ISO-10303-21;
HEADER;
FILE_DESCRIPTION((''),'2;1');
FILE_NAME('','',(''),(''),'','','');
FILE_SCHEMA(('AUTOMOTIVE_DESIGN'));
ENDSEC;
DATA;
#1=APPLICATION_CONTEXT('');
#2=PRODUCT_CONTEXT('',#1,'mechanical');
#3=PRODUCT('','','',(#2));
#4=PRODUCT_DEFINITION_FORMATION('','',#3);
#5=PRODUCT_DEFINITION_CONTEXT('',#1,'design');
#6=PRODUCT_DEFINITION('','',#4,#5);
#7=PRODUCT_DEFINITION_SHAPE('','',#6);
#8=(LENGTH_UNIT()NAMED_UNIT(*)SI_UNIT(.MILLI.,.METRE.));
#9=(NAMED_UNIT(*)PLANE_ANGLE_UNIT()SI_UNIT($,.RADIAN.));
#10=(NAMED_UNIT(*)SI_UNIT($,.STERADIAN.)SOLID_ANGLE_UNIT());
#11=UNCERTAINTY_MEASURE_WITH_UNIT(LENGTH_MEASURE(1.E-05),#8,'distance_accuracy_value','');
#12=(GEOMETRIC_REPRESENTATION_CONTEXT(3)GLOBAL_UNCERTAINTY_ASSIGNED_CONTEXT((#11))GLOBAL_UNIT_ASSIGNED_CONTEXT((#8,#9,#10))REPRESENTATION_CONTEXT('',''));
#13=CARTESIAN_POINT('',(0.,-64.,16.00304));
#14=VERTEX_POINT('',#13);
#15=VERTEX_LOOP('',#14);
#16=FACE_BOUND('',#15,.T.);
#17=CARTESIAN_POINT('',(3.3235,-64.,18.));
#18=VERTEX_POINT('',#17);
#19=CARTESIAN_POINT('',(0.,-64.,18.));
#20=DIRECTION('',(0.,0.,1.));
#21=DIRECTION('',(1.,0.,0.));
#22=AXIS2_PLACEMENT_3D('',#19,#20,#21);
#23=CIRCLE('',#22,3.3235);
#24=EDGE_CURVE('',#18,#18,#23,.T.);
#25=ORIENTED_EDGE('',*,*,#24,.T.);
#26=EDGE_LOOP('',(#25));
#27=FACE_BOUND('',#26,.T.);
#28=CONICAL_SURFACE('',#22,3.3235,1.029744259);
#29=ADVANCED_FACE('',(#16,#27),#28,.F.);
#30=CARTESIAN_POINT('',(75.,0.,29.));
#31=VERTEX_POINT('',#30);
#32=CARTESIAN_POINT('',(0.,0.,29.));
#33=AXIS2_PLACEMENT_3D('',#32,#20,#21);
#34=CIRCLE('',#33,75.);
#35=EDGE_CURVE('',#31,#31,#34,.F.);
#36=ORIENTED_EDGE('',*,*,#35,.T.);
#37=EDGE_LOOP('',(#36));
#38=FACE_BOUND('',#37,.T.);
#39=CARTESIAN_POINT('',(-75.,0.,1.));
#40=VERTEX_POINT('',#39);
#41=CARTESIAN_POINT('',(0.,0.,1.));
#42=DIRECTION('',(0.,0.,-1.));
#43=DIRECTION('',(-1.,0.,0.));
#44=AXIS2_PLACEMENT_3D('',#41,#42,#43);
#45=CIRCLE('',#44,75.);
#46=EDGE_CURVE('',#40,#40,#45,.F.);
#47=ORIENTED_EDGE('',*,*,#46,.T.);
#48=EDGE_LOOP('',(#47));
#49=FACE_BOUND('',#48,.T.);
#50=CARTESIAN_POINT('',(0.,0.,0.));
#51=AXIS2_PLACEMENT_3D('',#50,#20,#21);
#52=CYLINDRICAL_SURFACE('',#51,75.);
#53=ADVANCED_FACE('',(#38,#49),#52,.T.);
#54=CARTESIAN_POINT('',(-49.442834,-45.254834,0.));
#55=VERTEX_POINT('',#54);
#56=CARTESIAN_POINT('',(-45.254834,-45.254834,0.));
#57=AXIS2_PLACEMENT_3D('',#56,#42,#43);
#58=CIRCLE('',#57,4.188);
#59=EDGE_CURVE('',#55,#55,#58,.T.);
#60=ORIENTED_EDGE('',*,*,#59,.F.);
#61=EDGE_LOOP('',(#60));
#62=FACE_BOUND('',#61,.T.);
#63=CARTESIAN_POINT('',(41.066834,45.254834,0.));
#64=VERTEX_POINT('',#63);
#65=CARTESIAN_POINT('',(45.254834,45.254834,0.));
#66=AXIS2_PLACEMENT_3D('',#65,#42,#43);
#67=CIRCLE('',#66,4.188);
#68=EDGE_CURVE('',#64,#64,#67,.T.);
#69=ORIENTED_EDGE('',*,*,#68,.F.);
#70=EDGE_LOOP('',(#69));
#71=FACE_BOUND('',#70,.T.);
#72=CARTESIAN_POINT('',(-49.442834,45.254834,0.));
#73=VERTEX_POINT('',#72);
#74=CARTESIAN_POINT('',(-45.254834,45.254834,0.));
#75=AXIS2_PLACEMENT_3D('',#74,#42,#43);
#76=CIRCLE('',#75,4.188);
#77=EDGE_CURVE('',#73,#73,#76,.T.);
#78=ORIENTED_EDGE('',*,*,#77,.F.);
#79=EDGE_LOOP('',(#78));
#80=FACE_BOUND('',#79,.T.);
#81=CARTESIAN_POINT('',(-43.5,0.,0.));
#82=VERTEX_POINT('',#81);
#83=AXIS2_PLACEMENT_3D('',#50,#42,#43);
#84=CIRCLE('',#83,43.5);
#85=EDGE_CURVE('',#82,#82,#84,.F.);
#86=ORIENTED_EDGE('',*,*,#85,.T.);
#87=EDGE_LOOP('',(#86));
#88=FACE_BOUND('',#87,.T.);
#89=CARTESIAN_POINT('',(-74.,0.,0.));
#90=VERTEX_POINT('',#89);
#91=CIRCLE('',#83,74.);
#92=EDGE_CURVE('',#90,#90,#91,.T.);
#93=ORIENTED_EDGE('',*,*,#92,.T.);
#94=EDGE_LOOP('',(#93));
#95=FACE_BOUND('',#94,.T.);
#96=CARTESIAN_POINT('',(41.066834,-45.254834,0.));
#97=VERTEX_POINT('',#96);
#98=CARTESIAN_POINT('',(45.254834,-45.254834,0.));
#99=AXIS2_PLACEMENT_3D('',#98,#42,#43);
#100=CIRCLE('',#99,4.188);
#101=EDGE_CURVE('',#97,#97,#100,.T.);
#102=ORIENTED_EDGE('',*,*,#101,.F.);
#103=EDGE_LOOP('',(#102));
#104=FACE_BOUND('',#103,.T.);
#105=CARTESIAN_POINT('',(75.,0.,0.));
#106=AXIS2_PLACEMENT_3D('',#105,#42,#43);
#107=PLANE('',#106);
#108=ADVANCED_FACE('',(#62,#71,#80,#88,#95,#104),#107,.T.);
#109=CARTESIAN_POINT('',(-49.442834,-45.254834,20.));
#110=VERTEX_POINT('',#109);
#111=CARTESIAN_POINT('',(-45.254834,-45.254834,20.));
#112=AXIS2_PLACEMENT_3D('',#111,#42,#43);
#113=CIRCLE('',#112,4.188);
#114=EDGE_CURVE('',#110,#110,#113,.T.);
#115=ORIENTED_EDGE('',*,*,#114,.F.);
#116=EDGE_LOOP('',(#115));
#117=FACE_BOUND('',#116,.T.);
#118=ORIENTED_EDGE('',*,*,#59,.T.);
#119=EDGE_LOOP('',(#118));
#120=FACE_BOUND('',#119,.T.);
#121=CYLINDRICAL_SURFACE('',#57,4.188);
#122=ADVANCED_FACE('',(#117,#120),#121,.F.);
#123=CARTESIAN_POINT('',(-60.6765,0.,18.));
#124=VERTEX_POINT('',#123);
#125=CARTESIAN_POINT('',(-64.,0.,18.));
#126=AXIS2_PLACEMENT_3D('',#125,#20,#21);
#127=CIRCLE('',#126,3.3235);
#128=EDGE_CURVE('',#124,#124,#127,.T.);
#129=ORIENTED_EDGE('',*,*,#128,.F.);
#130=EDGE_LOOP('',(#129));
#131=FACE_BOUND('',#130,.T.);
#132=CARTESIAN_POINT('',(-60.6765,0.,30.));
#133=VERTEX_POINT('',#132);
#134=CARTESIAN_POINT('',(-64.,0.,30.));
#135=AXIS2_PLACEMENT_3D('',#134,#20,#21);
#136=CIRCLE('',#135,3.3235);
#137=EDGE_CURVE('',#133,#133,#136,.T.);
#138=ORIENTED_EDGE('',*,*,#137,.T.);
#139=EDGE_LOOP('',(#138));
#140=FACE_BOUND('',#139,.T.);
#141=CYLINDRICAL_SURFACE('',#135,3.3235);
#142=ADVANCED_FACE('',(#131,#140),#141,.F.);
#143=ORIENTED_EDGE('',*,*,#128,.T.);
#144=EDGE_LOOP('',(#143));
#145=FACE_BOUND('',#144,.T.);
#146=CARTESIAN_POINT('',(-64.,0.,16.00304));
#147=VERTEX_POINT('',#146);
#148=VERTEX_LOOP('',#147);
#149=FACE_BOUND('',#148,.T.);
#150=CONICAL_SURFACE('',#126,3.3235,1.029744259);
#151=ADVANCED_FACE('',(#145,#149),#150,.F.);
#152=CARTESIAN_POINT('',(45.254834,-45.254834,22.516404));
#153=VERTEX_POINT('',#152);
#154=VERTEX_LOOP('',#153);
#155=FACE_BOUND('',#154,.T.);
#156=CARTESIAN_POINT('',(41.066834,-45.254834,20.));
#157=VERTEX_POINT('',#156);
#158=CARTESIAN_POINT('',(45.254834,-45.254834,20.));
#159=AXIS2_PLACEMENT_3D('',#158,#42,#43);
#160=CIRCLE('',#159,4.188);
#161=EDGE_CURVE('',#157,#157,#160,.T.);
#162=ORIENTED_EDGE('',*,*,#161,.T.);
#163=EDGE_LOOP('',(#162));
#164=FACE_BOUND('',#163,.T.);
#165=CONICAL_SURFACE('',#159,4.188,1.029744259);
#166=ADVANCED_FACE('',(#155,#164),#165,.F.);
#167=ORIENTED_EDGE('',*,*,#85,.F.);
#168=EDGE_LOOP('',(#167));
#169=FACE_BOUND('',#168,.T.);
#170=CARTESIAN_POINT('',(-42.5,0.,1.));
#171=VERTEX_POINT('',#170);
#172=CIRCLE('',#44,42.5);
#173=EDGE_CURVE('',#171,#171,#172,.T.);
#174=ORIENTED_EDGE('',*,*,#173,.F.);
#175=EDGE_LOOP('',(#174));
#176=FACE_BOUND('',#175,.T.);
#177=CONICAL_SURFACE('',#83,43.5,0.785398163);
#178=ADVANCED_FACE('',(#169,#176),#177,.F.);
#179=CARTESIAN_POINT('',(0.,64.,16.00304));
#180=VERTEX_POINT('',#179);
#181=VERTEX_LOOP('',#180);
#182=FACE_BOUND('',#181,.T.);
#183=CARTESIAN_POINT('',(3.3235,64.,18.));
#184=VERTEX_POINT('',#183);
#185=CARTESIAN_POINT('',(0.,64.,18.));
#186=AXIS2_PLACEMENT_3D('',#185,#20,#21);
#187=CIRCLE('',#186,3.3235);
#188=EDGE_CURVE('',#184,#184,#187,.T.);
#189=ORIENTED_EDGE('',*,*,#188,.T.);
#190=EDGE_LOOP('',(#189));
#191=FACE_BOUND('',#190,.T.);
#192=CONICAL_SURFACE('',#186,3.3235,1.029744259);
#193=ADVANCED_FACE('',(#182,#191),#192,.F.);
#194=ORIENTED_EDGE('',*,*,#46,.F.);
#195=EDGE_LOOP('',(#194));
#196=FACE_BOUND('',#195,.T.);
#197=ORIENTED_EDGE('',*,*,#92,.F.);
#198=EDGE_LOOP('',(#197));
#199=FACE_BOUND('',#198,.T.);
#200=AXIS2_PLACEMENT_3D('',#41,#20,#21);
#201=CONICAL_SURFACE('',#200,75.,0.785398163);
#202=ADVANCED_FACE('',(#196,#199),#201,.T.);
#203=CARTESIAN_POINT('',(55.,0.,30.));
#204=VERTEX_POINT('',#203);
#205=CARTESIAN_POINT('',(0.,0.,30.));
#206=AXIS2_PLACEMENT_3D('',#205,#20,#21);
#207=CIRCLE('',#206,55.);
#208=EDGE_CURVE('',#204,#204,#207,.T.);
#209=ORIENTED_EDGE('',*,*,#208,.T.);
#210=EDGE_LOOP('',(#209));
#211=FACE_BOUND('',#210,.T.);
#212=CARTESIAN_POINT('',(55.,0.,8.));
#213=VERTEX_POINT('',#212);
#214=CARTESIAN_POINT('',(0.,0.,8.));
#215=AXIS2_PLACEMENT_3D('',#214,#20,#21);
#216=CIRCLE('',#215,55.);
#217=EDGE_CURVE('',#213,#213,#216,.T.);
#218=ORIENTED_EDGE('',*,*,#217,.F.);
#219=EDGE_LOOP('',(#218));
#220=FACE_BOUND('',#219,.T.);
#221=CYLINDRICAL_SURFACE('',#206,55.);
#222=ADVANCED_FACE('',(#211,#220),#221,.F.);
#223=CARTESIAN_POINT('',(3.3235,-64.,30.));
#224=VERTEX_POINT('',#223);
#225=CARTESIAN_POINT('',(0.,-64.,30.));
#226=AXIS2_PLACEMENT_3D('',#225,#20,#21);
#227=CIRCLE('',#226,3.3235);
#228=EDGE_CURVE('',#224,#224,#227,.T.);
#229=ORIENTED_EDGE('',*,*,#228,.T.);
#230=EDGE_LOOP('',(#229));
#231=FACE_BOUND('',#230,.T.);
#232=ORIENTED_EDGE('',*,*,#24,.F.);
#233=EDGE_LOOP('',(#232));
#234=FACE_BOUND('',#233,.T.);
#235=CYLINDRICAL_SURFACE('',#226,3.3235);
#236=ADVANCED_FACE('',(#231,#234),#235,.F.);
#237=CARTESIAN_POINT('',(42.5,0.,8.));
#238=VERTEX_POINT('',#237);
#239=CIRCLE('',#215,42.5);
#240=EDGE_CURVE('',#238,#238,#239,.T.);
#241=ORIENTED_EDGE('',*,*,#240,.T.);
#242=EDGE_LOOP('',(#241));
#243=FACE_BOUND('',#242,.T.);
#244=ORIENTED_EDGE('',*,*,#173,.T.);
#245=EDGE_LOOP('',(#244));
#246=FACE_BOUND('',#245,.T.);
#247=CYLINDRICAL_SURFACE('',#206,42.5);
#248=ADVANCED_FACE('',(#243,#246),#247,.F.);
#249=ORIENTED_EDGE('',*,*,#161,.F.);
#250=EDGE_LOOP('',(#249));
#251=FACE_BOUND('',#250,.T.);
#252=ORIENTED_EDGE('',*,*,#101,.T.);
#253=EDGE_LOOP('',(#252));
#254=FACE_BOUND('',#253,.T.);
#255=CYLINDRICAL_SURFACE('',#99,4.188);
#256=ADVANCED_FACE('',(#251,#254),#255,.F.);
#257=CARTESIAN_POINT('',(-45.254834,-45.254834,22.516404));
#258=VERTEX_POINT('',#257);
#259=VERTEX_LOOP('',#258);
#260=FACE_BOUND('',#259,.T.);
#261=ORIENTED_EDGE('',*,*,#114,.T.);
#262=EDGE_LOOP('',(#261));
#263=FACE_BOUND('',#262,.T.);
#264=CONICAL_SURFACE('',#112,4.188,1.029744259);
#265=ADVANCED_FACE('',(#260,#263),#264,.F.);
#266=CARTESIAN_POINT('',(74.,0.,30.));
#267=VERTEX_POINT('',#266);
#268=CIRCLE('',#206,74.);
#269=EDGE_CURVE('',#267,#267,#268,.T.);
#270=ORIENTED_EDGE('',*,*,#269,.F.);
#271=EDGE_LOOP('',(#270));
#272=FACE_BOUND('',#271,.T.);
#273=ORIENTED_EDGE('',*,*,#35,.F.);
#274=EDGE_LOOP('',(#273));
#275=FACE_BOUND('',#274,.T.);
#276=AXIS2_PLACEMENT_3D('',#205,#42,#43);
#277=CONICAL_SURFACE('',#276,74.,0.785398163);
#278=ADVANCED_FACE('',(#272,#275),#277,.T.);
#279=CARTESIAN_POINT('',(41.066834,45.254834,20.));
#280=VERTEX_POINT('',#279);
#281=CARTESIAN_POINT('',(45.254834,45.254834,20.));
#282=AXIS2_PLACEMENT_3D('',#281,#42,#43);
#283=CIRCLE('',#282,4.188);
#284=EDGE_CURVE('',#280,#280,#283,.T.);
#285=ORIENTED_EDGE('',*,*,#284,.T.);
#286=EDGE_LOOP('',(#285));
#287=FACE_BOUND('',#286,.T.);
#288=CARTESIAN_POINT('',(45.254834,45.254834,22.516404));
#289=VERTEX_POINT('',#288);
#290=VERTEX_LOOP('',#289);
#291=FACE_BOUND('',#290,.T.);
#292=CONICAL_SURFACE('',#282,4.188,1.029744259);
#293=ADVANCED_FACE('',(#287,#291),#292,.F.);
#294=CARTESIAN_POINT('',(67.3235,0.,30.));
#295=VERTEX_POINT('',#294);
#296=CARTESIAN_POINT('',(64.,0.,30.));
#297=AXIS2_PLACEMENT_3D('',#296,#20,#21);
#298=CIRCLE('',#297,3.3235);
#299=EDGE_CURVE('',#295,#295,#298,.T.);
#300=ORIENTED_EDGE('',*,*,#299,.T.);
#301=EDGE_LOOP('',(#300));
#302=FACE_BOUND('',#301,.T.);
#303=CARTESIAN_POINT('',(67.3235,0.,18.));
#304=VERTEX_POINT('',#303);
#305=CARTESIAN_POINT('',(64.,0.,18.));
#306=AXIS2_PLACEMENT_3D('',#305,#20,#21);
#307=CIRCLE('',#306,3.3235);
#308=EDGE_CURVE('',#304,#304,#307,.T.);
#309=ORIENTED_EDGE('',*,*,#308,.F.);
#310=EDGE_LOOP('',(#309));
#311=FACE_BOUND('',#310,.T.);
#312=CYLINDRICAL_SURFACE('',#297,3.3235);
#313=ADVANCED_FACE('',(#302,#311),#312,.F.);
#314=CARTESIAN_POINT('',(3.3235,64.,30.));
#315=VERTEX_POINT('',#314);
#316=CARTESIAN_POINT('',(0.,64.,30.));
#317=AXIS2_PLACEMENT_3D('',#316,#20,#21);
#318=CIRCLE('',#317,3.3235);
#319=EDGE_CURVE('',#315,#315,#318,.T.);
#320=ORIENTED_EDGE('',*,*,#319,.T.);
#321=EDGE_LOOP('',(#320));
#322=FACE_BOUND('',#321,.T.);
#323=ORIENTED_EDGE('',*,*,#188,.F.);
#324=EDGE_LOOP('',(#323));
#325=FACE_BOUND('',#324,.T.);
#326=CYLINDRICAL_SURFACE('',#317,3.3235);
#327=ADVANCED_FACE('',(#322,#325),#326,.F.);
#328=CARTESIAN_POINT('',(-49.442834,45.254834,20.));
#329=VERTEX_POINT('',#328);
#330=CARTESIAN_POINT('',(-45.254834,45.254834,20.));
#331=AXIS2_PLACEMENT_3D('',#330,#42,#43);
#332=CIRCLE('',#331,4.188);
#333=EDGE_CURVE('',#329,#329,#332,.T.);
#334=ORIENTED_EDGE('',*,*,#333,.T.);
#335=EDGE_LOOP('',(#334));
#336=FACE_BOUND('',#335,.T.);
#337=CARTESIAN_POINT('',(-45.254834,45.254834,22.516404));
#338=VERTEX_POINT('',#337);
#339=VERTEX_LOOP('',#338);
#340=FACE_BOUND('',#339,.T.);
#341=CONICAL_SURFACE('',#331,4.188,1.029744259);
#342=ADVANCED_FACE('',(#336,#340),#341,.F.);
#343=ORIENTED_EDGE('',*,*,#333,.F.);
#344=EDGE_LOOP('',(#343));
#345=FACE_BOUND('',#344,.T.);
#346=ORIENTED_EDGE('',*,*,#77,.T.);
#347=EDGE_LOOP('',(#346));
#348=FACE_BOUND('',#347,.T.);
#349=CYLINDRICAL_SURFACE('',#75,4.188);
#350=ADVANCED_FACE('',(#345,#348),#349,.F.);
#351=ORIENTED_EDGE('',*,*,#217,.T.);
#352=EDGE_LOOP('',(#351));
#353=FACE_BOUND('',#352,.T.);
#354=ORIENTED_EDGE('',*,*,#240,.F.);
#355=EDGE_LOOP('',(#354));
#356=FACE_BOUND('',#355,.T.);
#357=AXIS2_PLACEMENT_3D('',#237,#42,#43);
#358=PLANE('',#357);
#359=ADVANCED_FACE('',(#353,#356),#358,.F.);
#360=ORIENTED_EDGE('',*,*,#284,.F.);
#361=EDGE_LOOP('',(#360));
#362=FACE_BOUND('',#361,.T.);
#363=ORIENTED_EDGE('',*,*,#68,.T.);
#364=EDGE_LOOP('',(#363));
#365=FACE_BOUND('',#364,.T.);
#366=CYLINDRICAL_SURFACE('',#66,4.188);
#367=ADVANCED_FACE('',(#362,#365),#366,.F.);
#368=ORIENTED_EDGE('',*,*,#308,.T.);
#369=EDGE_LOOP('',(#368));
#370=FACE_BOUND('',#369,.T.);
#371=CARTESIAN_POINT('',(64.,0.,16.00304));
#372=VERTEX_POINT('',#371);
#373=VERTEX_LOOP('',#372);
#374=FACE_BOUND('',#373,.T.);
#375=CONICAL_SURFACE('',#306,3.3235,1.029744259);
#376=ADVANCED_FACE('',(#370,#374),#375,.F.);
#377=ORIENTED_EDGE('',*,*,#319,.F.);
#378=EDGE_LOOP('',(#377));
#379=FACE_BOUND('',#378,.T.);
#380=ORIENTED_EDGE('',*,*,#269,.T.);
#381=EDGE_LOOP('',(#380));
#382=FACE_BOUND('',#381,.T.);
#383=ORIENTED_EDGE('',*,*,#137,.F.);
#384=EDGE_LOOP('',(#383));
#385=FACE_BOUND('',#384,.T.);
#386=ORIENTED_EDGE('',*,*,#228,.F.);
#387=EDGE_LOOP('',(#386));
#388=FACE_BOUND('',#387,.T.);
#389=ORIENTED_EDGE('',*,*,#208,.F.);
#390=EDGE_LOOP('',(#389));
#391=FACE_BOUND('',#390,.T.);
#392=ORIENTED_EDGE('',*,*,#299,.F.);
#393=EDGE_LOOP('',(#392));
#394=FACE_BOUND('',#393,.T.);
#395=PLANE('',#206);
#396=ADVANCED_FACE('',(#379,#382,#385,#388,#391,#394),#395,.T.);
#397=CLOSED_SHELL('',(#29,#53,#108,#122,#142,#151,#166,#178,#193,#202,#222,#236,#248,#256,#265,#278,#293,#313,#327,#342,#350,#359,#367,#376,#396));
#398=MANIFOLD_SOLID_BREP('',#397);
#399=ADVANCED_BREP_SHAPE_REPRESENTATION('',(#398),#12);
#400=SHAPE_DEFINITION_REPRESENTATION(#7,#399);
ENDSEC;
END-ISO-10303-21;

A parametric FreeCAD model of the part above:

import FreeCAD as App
import Part
import Sketcher

V = App.Vector


def edges_at(feature, points):
    """Names of the edges that pass closest to the given points."""
    edges = feature.Shape.Edges
    near = lambda p: min(range(len(edges)), key=lambda i: edges[i].distToShape(Part.Vertex(*p))[0])
    return sorted({f"Edge{near(p) + 1}" for p in points})


def add_polygon(sketch, points):
    """Adds a closed chain of lines whose ends are joined by coincident constraints."""
    first, n = sketch.GeometryCount, len(points)
    for a, b in zip(points, points[1:] + points[:1]):
        sketch.addGeometry(Part.LineSegment(App.Vector(*a, 0), App.Vector(*b, 0)), False)
    for i in range(n):
        sketch.addConstraint(Sketcher.Constraint("Coincident", first + i, 2, first + (i + 1) % n, 1))

doc = App.newDocument("Part")
params = doc.addObject("Spreadsheet::Sheet", "Params")
for row, (alias, value) in enumerate([
    ("sketch1_width", "75 mm"),
    ("sketch1_height", "30 mm"),
    ("revolution_angle", "360 deg"),
    ("sketch2_diameter", "85 mm"),
    ("hole_diameter", "85 mm"),
    ("hole_depth", "30 mm"),
    ("hole_cbore_diameter", "110 mm"),
    ("hole_cbore_depth", "22 mm"),
    ("hole2_diameter", "8.376 mm"),
    ("hole2_depth", "20 mm"),
    ("hole3_diameter", "6.647 mm"),
    ("hole3_depth", "12 mm"),
    ("chamfer_size", "1 mm"),
], start=1):
    params.set(f"A{row}", alias)
    params.set(f"B{row}", "=" + value)
    params.setAlias(f"B{row}", alias)

body = doc.addObject("PartDesign::Body", "Body")

sketch1 = body.newObject("Sketcher::SketchObject", "Sketch")
sketch1.AttachmentSupport = (doc.getObject("XZ_Plane"), [""])
sketch1.MapMode = "FlatFace"
add_polygon(sketch1, [(0, 0), (0, 30), (75, 30), (75, 0)])
sketch1.addConstraint([
    Sketcher.Constraint("Vertical", 0),
    Sketcher.Constraint("Horizontal", 1),
    Sketcher.Constraint("Vertical", 2),
    Sketcher.Constraint("Horizontal", 3),
    Sketcher.Constraint("Coincident", 3, 2, -1, 1),
    Sketcher.Constraint("DistanceX", 1, 1, 1, 2, 75.0),
    Sketcher.Constraint("DistanceY", 0, 1, 0, 2, 30.0),
])
sketch1.setExpression("Constraints[9]", "Params.sketch1_width")
sketch1.setExpression("Constraints[10]", "Params.sketch1_height")
revolution = body.newObject("PartDesign::Revolution", "Revolution")
revolution.Profile = sketch1
revolution.ReferenceAxis = (sketch1, ["V_Axis"])
revolution.setExpression("Angle", "Params.revolution_angle")

sketch2 = body.newObject("Sketcher::SketchObject", "Sketch001")
sketch2.AttachmentSupport = (doc.getObject("XY_Plane"), [""])
sketch2.MapMode = "FlatFace"
sketch2.AttachmentOffset = App.Placement(V(0, 0, 30), App.Rotation())
sketch2.addGeometry(Part.Circle(V(0, 0, 0), V(0, 0, 1), 42), False)
sketch2.addConstraint([
    Sketcher.Constraint("Coincident", 0, 3, -1, 1),
    Sketcher.Constraint("Diameter", 0, 85.0),
])
sketch2.setExpression("Constraints[1]", "Params.sketch2_diameter")
doc.recompute()
hole = body.newObject("PartDesign::Hole", "Hole")
hole.Profile = sketch2
hole.ThreadType = "None"
hole.setExpression("Diameter", "Params.hole_diameter")
hole.DepthType = "Dimension"
hole.setExpression("Depth", "Params.hole_depth")
hole.DrillPoint = "Flat"
hole.HoleCutType = "Counterbore"
hole.setExpression("HoleCutDiameter", "Params.hole_cbore_diameter")
hole.setExpression("HoleCutDepth", "Params.hole_cbore_depth")

sketch3 = body.newObject("Sketcher::SketchObject", "Sketch002")
sketch3.AttachmentSupport = (doc.getObject("XY_Plane"), [""])
sketch3.MapMode = "FlatFace"
sketch3.addGeometry([
    Part.Circle(V(-45.3, 45.3, 0), V(0, 0, 1), 4.2),
    Part.Circle(V(45.3, 45.3, 0), V(0, 0, 1), 4.2),
    Part.Circle(V(45.3, -45.3, 0), V(0, 0, 1), 4.2),
    Part.Circle(V(-45.3, -45.3, 0), V(0, 0, 1), 4.2),
], False)
sketch3.addConstraint([
    Sketcher.Constraint("Equal", 0, 1),
    Sketcher.Constraint("Equal", 1, 2),
    Sketcher.Constraint("Equal", 2, 3),
    Sketcher.Constraint("Symmetric", 0, 3, 2, 3, -1, 1),
    Sketcher.Constraint("Symmetric", 1, 3, 3, 3, -1, 1),
    Sketcher.Constraint("Symmetric", 0, 3, 1, 3, -2),
    Sketcher.Constraint("Diameter", 0, 8.376),
    Sketcher.Constraint("DistanceX", 0, 3, -1, 1, 45.254834),
    Sketcher.Constraint("DistanceY", -1, 1, 0, 3, 45.254834),
])
doc.recompute()
hole2 = body.newObject("PartDesign::Hole", "Hole001")
hole2.Profile = sketch3
hole2.ThreadType = "None"
hole2.setExpression("Diameter", "Params.hole2_diameter")
hole2.DepthType = "Dimension"
hole2.setExpression("Depth", "Params.hole2_depth")
hole2.DrillPoint = "Angled"
hole2.DrillPointAngle = 118
hole2.Reversed = True

sketch4 = body.newObject("Sketcher::SketchObject", "Sketch003")
sketch4.AttachmentSupport = (doc.getObject("XY_Plane"), [""])
sketch4.MapMode = "FlatFace"
sketch4.AttachmentOffset = App.Placement(V(0, 0, 30), App.Rotation())
sketch4.addGeometry([
    Part.Circle(V(0, 64, 0), V(0, 0, 1), 3.3),
    Part.Circle(V(0, -64, 0), V(0, 0, 1), 3.3),
    Part.Circle(V(64, 0, 0), V(0, 0, 1), 3.3),
    Part.Circle(V(-64, 0, 0), V(0, 0, 1), 3.3),
], False)
sketch4.addConstraint([
    Sketcher.Constraint("Equal", 0, 1),
    Sketcher.Constraint("Equal", 1, 2),
    Sketcher.Constraint("Equal", 2, 3),
    Sketcher.Constraint("Symmetric", 0, 3, 1, 3, -1, 1),
    Sketcher.Constraint("Symmetric", 2, 3, 3, 3, -1, 1),
    Sketcher.Constraint("PointOnObject", 0, 3, -2),
    Sketcher.Constraint("PointOnObject", 2, 3, -1),
    Sketcher.Constraint("Diameter", 0, 6.647),
    Sketcher.Constraint("DistanceY", -1, 1, 0, 3, 64.0),
    Sketcher.Constraint("DistanceX", -1, 1, 2, 3, 64.0),
])
doc.recompute()
hole3 = body.newObject("PartDesign::Hole", "Hole002")
hole3.Profile = sketch4
hole3.ThreadType = "None"
hole3.setExpression("Diameter", "Params.hole3_diameter")
hole3.DepthType = "Dimension"
hole3.setExpression("Depth", "Params.hole3_depth")
hole3.DrillPoint = "Angled"
hole3.DrillPointAngle = 118
doc.recompute()

chamfer = body.newObject("PartDesign::Chamfer", "Chamfer")
chamfer.Base = (hole3, edges_at(hole3, [(42.5, 0, 0), (-75, 0, 30), (-75, 0, 0)]))
chamfer.setExpression("Size", "Params.chamfer_size")

doc.recompute()
